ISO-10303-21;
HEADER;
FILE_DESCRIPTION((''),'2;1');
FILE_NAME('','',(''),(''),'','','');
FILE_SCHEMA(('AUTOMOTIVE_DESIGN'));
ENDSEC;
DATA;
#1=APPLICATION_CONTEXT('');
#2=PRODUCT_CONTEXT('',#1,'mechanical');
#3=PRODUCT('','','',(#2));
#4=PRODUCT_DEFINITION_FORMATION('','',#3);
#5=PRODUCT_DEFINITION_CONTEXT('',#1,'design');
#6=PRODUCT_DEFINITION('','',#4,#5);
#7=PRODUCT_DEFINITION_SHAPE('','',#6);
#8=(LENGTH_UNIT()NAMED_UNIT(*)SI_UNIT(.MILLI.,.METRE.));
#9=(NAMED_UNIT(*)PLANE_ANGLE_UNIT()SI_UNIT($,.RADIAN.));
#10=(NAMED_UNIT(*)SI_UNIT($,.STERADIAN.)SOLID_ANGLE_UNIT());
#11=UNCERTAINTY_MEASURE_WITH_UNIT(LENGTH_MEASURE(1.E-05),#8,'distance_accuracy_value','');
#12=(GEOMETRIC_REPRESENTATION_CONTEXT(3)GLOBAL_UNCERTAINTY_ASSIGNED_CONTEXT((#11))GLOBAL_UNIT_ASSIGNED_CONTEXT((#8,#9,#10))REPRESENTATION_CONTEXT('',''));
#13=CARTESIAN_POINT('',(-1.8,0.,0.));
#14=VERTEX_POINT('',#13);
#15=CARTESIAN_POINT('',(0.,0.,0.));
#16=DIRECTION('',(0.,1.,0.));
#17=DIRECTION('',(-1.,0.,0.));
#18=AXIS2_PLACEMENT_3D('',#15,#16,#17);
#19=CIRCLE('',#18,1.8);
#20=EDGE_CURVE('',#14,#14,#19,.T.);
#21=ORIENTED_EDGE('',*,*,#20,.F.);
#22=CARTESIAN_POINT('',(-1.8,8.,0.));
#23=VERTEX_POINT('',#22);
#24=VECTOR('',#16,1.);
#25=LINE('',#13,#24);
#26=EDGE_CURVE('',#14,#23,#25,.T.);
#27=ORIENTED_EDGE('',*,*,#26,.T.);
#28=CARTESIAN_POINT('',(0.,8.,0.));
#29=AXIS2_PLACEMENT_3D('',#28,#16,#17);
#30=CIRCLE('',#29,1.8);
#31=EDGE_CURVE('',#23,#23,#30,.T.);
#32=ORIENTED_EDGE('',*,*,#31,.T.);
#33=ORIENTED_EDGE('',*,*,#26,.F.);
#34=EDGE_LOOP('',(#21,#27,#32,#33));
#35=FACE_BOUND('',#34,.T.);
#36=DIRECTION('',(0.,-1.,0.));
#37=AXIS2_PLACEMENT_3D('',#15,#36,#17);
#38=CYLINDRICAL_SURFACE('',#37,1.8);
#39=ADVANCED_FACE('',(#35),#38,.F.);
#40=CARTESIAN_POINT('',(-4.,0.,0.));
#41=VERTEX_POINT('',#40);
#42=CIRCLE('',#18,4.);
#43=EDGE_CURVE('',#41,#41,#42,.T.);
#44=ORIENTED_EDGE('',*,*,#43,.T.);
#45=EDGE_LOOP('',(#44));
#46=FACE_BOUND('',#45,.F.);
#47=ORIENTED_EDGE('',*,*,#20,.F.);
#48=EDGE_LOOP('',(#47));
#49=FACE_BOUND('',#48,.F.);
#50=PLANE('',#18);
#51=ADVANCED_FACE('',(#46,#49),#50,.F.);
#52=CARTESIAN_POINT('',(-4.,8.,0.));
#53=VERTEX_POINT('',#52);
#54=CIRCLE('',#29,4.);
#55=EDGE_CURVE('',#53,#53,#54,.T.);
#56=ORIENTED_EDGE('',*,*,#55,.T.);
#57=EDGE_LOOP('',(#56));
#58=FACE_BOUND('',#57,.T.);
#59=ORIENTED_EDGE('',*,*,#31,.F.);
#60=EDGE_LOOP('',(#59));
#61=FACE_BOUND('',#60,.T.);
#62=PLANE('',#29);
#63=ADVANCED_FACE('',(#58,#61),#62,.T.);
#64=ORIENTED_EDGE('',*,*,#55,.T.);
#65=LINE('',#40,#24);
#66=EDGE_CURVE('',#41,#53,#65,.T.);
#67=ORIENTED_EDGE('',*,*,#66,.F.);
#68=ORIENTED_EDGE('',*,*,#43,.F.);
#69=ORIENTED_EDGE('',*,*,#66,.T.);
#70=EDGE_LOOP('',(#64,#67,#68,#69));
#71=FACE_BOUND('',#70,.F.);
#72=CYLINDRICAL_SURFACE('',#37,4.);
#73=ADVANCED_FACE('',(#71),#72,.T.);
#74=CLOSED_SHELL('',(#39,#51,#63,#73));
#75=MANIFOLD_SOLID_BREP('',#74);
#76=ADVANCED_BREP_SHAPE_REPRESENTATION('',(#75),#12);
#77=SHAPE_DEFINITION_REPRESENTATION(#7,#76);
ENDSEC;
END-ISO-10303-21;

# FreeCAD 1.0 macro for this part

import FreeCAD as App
import Part
import Sketcher

V = App.Vector

doc = App.newDocument("Part")
body = doc.addObject("PartDesign::Body", "Body")

sketch1 = body.newObject("Sketcher::SketchObject", "Sketch")
sketch1.AttachmentSupport = (doc.getObject("XZ_Plane"), [""])
sketch1.MapMode = "FlatFace"
sketch1.addGeometry([
    Part.Circle(V(0, 0, 0), V(0, 0, 1), 4),
    Part.Circle(V(0, 0, 0), V(0, 0, 1), 1.8),
], False)
sketch1.addConstraint([
    Sketcher.Constraint("Coincident", 0, 3, -1, 1),
    Sketcher.Constraint("Coincident", 1, 3, -1, 1),
    Sketcher.Constraint("Diameter", 0, 8.0),
    Sketcher.Constraint("Diameter", 1, 3.6),
])
pad1 = body.newObject("PartDesign::Pad", "Pad")
pad1.Profile = sketch1
pad1.Length = 8
pad1.Reversed = True

doc.recompute()
